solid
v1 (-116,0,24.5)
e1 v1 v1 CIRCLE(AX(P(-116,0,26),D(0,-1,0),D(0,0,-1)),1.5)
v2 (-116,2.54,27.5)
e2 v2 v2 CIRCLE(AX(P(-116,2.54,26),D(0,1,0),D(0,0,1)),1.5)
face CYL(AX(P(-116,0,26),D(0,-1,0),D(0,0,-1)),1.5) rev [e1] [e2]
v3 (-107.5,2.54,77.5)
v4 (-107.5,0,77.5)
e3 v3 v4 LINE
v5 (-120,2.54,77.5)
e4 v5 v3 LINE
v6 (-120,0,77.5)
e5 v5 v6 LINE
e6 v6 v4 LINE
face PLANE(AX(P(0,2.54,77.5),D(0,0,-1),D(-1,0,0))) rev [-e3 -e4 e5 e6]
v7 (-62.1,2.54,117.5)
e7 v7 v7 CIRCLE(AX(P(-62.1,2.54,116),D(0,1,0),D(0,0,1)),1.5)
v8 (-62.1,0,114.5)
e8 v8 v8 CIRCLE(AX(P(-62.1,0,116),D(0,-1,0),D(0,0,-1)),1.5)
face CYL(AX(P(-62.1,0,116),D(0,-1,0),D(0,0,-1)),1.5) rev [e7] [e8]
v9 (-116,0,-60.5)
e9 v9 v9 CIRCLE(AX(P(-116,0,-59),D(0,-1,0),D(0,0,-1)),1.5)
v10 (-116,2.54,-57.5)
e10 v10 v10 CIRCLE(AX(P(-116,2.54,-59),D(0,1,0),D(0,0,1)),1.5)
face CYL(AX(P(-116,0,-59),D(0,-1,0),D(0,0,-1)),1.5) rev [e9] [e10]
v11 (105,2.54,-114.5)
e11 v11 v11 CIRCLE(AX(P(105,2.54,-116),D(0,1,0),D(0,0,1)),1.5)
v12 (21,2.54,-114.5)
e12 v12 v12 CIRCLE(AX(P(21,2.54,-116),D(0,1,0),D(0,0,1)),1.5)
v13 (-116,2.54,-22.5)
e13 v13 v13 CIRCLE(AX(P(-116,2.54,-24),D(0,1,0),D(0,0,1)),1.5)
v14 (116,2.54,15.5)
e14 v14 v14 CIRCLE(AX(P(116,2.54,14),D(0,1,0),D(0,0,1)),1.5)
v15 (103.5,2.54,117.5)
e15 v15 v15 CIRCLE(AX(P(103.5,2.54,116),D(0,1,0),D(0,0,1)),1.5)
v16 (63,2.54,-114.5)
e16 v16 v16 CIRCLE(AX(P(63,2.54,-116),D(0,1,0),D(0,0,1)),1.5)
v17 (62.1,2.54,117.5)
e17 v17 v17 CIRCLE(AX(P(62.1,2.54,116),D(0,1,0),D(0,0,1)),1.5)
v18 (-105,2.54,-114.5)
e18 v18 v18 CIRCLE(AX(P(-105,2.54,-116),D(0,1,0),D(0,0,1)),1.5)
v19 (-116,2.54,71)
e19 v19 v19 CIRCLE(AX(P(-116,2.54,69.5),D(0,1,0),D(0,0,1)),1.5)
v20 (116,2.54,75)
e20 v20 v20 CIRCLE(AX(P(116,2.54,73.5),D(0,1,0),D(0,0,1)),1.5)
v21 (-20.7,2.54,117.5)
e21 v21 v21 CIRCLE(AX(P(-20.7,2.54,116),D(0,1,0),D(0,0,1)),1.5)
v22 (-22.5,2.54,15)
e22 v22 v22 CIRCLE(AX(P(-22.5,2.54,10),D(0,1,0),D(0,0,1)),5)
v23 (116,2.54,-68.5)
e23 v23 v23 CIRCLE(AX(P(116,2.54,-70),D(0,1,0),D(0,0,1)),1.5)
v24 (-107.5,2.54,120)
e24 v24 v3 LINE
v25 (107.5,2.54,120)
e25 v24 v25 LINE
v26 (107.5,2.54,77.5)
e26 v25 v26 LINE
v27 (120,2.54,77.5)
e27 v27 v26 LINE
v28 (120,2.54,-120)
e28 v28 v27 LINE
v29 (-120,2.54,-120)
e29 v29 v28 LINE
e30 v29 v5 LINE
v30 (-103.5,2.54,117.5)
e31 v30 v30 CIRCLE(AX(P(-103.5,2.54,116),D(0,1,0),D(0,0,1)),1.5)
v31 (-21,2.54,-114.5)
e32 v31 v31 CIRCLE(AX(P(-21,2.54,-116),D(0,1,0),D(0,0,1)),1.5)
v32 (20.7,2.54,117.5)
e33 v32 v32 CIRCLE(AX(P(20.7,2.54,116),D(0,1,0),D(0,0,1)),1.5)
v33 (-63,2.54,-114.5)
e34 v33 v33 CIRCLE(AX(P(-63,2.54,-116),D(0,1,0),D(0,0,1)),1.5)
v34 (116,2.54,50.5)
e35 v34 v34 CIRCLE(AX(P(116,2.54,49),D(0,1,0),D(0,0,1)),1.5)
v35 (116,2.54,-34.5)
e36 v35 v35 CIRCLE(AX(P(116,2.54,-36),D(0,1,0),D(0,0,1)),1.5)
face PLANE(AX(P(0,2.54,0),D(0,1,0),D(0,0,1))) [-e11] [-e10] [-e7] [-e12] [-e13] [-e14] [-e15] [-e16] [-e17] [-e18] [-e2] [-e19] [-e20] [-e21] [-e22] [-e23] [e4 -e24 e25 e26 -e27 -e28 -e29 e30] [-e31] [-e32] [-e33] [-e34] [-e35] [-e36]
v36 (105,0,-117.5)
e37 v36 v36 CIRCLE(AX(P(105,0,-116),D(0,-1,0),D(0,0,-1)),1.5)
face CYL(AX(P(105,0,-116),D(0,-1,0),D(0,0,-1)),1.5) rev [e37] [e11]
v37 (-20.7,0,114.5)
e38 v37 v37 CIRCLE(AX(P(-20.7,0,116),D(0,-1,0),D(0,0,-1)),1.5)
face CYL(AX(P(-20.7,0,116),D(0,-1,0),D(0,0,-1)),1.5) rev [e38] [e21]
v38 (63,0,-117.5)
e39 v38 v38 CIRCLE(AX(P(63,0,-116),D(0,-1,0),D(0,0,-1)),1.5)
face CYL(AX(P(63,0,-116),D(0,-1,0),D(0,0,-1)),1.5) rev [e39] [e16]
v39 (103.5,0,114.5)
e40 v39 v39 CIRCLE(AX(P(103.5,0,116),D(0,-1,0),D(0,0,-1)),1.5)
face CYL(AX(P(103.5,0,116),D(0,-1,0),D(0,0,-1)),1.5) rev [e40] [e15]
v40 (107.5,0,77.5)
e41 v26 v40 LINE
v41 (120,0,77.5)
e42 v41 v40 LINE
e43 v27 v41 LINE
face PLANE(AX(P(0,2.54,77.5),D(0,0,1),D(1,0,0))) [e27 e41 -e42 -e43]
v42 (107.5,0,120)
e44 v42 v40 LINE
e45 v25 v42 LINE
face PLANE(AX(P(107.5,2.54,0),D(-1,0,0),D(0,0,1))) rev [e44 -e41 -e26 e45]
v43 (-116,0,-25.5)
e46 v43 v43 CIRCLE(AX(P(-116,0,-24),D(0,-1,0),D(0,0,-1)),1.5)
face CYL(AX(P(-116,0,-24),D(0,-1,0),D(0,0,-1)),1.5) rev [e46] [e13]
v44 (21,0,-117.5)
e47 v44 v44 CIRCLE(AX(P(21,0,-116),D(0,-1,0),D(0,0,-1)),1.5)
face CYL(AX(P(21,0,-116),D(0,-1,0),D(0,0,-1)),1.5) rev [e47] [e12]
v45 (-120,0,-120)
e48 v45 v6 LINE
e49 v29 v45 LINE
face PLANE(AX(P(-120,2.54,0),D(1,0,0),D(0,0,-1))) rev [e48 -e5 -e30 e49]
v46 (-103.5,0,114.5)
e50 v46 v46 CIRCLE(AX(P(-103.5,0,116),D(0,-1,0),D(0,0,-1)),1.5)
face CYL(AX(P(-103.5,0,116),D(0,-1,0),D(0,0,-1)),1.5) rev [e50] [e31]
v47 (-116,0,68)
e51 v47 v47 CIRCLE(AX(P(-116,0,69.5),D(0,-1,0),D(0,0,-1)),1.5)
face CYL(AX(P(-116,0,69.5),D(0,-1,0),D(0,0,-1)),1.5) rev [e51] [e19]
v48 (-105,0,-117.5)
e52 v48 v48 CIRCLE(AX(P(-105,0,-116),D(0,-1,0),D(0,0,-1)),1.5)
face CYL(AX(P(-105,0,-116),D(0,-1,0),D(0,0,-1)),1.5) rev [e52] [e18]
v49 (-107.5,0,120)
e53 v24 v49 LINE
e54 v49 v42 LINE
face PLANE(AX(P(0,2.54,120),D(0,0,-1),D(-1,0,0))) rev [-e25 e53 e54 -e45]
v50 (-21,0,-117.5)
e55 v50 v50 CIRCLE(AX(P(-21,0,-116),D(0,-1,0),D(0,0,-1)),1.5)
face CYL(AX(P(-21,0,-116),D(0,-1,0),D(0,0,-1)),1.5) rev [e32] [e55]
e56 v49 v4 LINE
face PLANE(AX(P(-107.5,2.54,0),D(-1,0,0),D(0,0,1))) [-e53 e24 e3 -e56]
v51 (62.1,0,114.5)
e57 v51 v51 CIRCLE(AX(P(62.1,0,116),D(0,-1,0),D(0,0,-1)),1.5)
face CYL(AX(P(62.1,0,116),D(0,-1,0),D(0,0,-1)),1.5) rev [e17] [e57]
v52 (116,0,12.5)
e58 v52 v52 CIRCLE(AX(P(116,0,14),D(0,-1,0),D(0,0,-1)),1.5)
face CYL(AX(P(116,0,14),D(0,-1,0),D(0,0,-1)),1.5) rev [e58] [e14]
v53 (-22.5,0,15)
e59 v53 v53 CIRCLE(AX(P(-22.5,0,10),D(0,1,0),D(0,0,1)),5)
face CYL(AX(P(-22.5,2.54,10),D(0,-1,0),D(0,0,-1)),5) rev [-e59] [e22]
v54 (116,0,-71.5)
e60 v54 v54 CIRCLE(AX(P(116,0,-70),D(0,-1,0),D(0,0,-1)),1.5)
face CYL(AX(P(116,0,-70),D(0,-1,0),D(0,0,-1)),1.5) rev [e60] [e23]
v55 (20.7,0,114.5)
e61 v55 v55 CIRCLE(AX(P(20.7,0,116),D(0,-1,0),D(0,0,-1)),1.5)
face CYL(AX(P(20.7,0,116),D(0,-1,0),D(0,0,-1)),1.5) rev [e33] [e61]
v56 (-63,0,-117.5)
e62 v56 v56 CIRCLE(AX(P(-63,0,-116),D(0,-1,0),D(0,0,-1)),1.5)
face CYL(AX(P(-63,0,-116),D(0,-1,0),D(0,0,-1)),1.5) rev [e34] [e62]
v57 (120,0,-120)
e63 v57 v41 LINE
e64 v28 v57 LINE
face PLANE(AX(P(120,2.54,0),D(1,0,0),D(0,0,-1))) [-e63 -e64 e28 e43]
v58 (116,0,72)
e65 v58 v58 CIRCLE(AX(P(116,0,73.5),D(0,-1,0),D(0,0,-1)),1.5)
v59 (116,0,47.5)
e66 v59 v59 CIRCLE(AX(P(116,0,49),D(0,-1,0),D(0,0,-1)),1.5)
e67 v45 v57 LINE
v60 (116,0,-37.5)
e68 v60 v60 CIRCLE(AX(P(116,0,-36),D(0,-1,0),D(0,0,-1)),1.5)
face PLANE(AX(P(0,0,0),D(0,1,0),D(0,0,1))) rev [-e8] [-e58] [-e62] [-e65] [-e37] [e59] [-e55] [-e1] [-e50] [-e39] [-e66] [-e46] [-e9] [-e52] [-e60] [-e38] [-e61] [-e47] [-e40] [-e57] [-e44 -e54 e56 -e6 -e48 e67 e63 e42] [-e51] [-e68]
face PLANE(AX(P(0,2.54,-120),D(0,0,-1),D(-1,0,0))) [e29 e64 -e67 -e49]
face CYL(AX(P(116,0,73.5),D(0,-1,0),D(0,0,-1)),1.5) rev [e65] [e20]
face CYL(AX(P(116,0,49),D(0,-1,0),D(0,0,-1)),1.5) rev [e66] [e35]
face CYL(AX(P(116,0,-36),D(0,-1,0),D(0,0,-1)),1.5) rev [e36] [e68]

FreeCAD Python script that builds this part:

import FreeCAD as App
import Part
import Sketcher

doc = App.newDocument("Part")
body = doc.addObject("PartDesign::Body", "Body")

sketch1 = body.newObject("Sketcher::SketchObject", "Sketch")
sketch1.AttachmentSupport = (doc.getObject("XZ_Plane"), [""])
sketch1.MapMode = "FlatFace"
sketch1.addGeometry([
    Part.LineSegment(App.Vector(-108, 78, 0), App.Vector(-108, 120, 0)),
    Part.LineSegment(App.Vector(-108, 120, 0), App.Vector(108, 120, 0)),
    Part.LineSegment(App.Vector(108, 120, 0), App.Vector(108, 78, 0)),
    Part.LineSegment(App.Vector(108, 78, 0), App.Vector(120, 78, 0)),
    Part.LineSegment(App.Vector(120, 78, 0), App.Vector(120, -120, 0)),
    Part.LineSegment(App.Vector(120, -120, 0), App.Vector(-120, -120, 0)),
    Part.LineSegment(App.Vector(-120, -120, 0), App.Vector(-120, 78, 0)),
    Part.LineSegment(App.Vector(-120, 78, 0), App.Vector(-108, 78, 0)),
    Part.Circle(App.Vector(-22, 10, 0), App.Vector(0, 0, 1), 5),
], False)
sketch1.addConstraint([
    Sketcher.Constraint("Coincident", 0, 2, 1, 1),
    Sketcher.Constraint("Coincident", 1, 2, 2, 1),
    Sketcher.Constraint("Coincident", 2, 2, 3, 1),
    Sketcher.Constraint("Coincident", 3, 2, 4, 1),
    Sketcher.Constraint("Coincident", 4, 2, 5, 1),
    Sketcher.Constraint("Coincident", 5, 2, 6, 1),
    Sketcher.Constraint("Coincident", 6, 2, 7, 1),
    Sketcher.Constraint("Coincident", 7, 2, 0, 1),
    Sketcher.Constraint("Vertical", 0),
    Sketcher.Constraint("Horizontal", 1),
    Sketcher.Constraint("Vertical", 2),
    Sketcher.Constraint("Horizontal", 3),
    Sketcher.Constraint("Vertical", 4),
    Sketcher.Constraint("Horizontal", 5),
    Sketcher.Constraint("Vertical", 6),
    Sketcher.Constraint("Horizontal", 7),
    Sketcher.Constraint("Symmetric", 3, 2, 6, 2, -2),
    Sketcher.Constraint("Equal", 3, 7),
    Sketcher.Constraint("Diameter", 8, 10.0),
    Sketcher.Constraint("DistanceX", 1, 1, 1, 2, 215.0),
    Sketcher.Constraint("DistanceX", 5, 2, 5, 1, 240.0),
    Sketcher.Constraint("DistanceY", 0, 1, 0, 2, 42.5),
    Sketcher.Constraint("DistanceY", 4, 2, 4, 1, 197.5),
    Sketcher.Constraint("DistanceY", -1, 1, 8, 3, 10.0),
    Sketcher.Constraint("DistanceY", -1, 1, 0, 2, 120.0),
    Sketcher.Constraint("DistanceX", 0, 2, 8, 3, 85.0),
])
pad1 = body.newObject("PartDesign::Pad", "Pad")
pad1.Profile = sketch1
pad1.Length = 2.54
pad1.Reversed = True

sketch2 = body.newObject("Sketcher::SketchObject", "Sketch001")
sketch2.AttachmentSupport = (doc.getObject("XZ_Plane"), [""])
sketch2.MapMode = "FlatFace"
sketch2.addGeometry([
    Part.Circle(App.Vector(-103.5, 116, 0), App.Vector(0, 0, 1), 1.5),
    Part.Circle(App.Vector(-62.1, 116, 0), App.Vector(0, 0, 1), 1.5),
    Part.Circle(App.Vector(-20.7, 116, 0), App.Vector(0, 0, 1), 1.5),
    Part.Circle(App.Vector(20.7, 116, 0), App.Vector(0, 0, 1), 1.5),
    Part.Circle(App.Vector(62.1, 116, 0), App.Vector(0, 0, 1), 1.5),
    Part.Circle(App.Vector(103.5, 116, 0), App.Vector(0, 0, 1), 1.5),
    Part.Circle(App.Vector(116, 73.5, 0), App.Vector(0, 0, 1), 1.5),
    Part.Circle(App.Vector(116, 49, 0), App.Vector(0, 0, 1), 1.5),
    Part.Circle(App.Vector(116, 14, 0), App.Vector(0, 0, 1), 1.5),
    Part.Circle(App.Vector(116, -36, 0), App.Vector(0, 0, 1), 1.5),
    Part.Circle(App.Vector(116, -70, 0), App.Vector(0, 0, 1), 1.5),
    Part.Circle(App.Vector(105, -116, 0), App.Vector(0, 0, 1), 1.5),
    Part.Circle(App.Vector(63, -116, 0), App.Vector(0, 0, 1), 1.5),
    Part.Circle(App.Vector(21, -116, 0), App.Vector(0, 0, 1), 1.5),
    Part.Circle(App.Vector(-21, -116, 0), App.Vector(0, 0, 1), 1.5),
    Part.Circle(App.Vector(-63, -116, 0), App.Vector(0, 0, 1), 1.5),
    Part.Circle(App.Vector(-105, -116, 0), App.Vector(0, 0, 1), 1.5),
    Part.Circle(App.Vector(-116, -59, 0), App.Vector(0, 0, 1), 1.5),
    Part.Circle(App.Vector(-116, -24, 0), App.Vector(0, 0, 1), 1.5),
    Part.Circle(App.Vector(-116, 26, 0), App.Vector(0, 0, 1), 1.5),
    Part.Circle(App.Vector(-116, 69.5, 0), App.Vector(0, 0, 1), 1.5),
], False)
sketch2.addConstraint([
    Sketcher.Constraint("Equal", 0, 1),
    Sketcher.Constraint("Equal", 1, 2),
    Sketcher.Constraint("Equal", 2, 3),
    Sketcher.Constraint("Equal", 3, 4),
    Sketcher.Constraint("Equal", 4, 5),
    Sketcher.Constraint("Equal", 5, 6),
    Sketcher.Constraint("Equal", 6, 7),
    Sketcher.Constraint("Equal", 7, 8),
    Sketcher.Constraint("Equal", 8, 9),
    Sketcher.Constraint("Equal", 9, 10),
    Sketcher.Constraint("Equal", 10, 11),
    Sketcher.Constraint("Equal", 11, 12),
    Sketcher.Constraint("Equal", 12, 13),
    Sketcher.Constraint("Equal", 13, 14),
    Sketcher.Constraint("Equal", 14, 15),
    Sketcher.Constraint("Equal", 15, 16),
    Sketcher.Constraint("Equal", 16, 17),
    Sketcher.Constraint("Equal", 17, 18),
    Sketcher.Constraint("Equal", 18, 19),
    Sketcher.Constraint("Equal", 19, 20),
    Sketcher.Constraint("Symmetric", 2, 3, 3, 3, -2),
    Sketcher.Constraint("Symmetric", 1, 3, 4, 3, -2),
    Sketcher.Constraint("Symmetric", 0, 3, 5, 3, -2),
    Sketcher.Constraint("Symmetric", 13, 3, 14, 3, -2),
    Sketcher.Constraint("Symmetric", 12, 3, 15, 3, -2),
    Sketcher.Constraint("Symmetric", 11, 3, 16, 3, -2),
    Sketcher.Constraint("Horizontal", 0, 3, 1, 3),
    Sketcher.Constraint("Horizontal", 1, 3, 2, 3),
    Sketcher.Constraint("Horizontal", 11, 3, 12, 3),
    Sketcher.Constraint("Horizontal", 12, 3, 13, 3),
    Sketcher.Constraint("Vertical", 6, 3, 7, 3),
    Sketcher.Constraint("Vertical", 7, 3, 8, 3),
    Sketcher.Constraint("Vertical", 8, 3, 9, 3),
    Sketcher.Constraint("Vertical", 9, 3, 10, 3),
    Sketcher.Constraint("Vertical", 17, 3, 18, 3),
    Sketcher.Constraint("Vertical", 18, 3, 19, 3),
    Sketcher.Constraint("Vertical", 19, 3, 20, 3),
    Sketcher.Constraint("Diameter", 0, 3.0),
    Sketcher.Constraint("DistanceY", -1, 1, 0, 3, 116.0),
    Sketcher.Constraint("DistanceX", -1, 1, 6, 3, 116.0),
    Sketcher.Constraint("DistanceY", -1, 1, 7, 3, 49.0),
    Sketcher.Constraint("DistanceY", -1, 1, 8, 3, 14.0),
    Sketcher.Constraint("DistanceY", 9, 3, -1, 1, 36.0),
    Sketcher.Constraint("DistanceY", 10, 3, -1, 1, 70.0),
    Sketcher.Constraint("DistanceX", -1, 1, 11, 3, 105.0),
    Sketcher.Constraint("DistanceY", 11, 3, -1, 1, 116.0),
    Sketcher.Constraint("DistanceX", -1, 1, 12, 3, 63.0),
    Sketcher.Constraint("DistanceX", -1, 1, 13, 3, 21.0),
    Sketcher.Constraint("DistanceX", 17, 3, -1, 1, 116.0),
    Sketcher.Constraint("DistanceY", 17, 3, -1, 1, 59.0),
    Sketcher.Constraint("DistanceY", 18, 3, -1, 1, 24.0),
    Sketcher.Constraint("DistanceY", -1, 1, 19, 3, 26.0),
    Sketcher.Constraint("DistanceX", 0, 3, 5, 3, 207.0),
    Sketcher.Constraint("DistanceX", 1, 3, -1, 1, 62.1),
    Sketcher.Constraint("DistanceX", 2, 3, -1, 1, 20.7),
    Sketcher.Constraint("DistanceY", -1, 1, 6, 3, 73.5),
    Sketcher.Constraint("DistanceY", -1, 1, 20, 3, 69.5),
])
doc.recompute()
hole = body.newObject("PartDesign::Hole", "Hole")
hole.Profile = sketch2
hole.ThreadType = "None"
hole.Diameter = 3
hole.DepthType = "ThroughAll"

doc.recompute()
